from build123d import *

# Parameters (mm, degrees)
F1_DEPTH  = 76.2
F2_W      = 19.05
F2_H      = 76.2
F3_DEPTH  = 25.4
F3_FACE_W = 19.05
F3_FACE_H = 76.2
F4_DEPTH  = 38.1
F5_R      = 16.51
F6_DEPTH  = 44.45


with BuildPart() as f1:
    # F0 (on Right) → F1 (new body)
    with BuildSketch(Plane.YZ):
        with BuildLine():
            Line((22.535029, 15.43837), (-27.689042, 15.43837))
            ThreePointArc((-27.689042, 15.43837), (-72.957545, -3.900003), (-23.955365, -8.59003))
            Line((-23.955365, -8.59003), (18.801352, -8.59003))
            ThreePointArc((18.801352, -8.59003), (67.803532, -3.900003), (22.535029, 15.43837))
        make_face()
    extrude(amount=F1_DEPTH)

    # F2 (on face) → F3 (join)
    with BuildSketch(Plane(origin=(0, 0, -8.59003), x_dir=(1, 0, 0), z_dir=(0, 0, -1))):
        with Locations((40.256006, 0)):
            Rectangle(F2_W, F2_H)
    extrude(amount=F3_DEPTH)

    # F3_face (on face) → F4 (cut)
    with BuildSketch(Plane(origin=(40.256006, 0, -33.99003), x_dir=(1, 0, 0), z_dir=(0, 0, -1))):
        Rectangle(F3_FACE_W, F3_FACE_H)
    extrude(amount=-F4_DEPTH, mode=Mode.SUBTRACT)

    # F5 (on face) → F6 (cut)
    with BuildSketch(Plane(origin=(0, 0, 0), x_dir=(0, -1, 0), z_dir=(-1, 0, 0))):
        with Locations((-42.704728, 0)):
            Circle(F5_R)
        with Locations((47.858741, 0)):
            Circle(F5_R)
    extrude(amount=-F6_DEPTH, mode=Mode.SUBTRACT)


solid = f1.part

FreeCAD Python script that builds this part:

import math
import FreeCAD as App
import Part
import Sketcher

V = App.Vector
Q = App.Units.Quantity


def add_polygon(sketch, points):
    """Adds a closed chain of lines whose ends are joined by coincident constraints."""
    first, n = sketch.GeometryCount, len(points)
    for a, b in zip(points, points[1:] + points[:1]):
        sketch.addGeometry(Part.LineSegment(App.Vector(*a, 0), App.Vector(*b, 0)), False)
    for i in range(n):
        sketch.addConstraint(Sketcher.Constraint("Coincident", first + i, 2, first + (i + 1) % n, 1))

doc = App.newDocument("Part")
params = doc.addObject("Spreadsheet::Sheet", "Params")
for row, (alias, value) in enumerate([
    ("sketch1_radius", "1 in"),
    ("pad1_length", "3 in"),
    ("sketch2_height", "3 in"),
    ("sketch2_width", "0.75 in"),
    ("pad2_length", "1 in"),
    ("sketch3_height", "3 in"),
    ("sketch3_width", "0.75 in"),
    ("pocket1_length", "1.5 in"),
    ("sketch4_diameter", "1.3 in"),
    ("pocket2_length", "1.75 in"),
], start=1):
    params.set(f"A{row}", alias)
    params.set(f"B{row}", "=" + value)
    params.setAlias(f"B{row}", alias)

body = doc.addObject("PartDesign::Body", "Body")

sketch1 = doc.addObject("Sketcher::SketchObject", "Sketch")
body.addObject(sketch1)
sketch1.AttachmentSupport = (doc.YZ_Plane, [""])
sketch1.MapMode = "FlatFace"
sketch1.addGeometry(Part.LineSegment(V(22.535029, 15.43837, 0), V(-27.689042, 15.43837, 0)), False)
sketch1.addGeometry(Part.ArcOfCircle(Part.Circle(V(-47.858741, 0.000001, 0), V(0, 0, 1), 25.4), math.radians(37.431307), math.radians(340.233352)), False)
sketch1.addGeometry(Part.LineSegment(V(-23.955365, -8.59003, 0), V(18.801352, -8.59003, 0)), False)
sketch1.addGeometry(Part.ArcOfCircle(Part.Circle(V(42.704728, 0.000001, 0), V(0, 0, 1), 25.4), math.radians(-160.233352), math.radians(142.568693)), False)
sketch1.addConstraint(Sketcher.Constraint("Coincident", 0, 2, 1, 1))
sketch1.addConstraint(Sketcher.Constraint("Coincident", 1, 2, 2, 1))
sketch1.addConstraint(Sketcher.Constraint("Coincident", 2, 2, 3, 1))
sketch1.addConstraint(Sketcher.Constraint("Coincident", 3, 2, 0, 1))
sketch1.addConstraint(Sketcher.Constraint("Horizontal", 0))
sketch1.addConstraint(Sketcher.Constraint("Horizontal", 2))
sketch1.addConstraint(Sketcher.Constraint("Equal", 1, 3))
sketch1.addConstraint(Sketcher.Constraint("PointOnObject", 1, 3, -1))
sketch1.addConstraint(Sketcher.Constraint("PointOnObject", 3, 3, -1))
sketch1.addConstraint(Sketcher.Constraint("Radius", 1, Q("1 in")))
sketch1.addConstraint(Sketcher.Constraint("DistanceY", 1, 2, 0, 2, Q("0.946 in")))
sketch1.addConstraint(Sketcher.Constraint("DistanceX", 0, 2, 0, 1, Q("50.224071 mm")))
sketch1.addConstraint(Sketcher.Constraint("DistanceX", 1, 3, 0, 2, Q("20.169699 mm")))
sketch1.addConstraint(Sketcher.Constraint("DistanceX", 1, 3, -1, 1, Q("47.858741 mm")))
sketch1.setExpression("Constraints[9]", "Params.sketch1_radius")
pad1 = doc.addObject("PartDesign::Pad", "Pad")
body.addObject(pad1)
pad1.Profile = sketch1
pad1.setExpression("Length", "Params.pad1_length")

sketch2 = doc.addObject("Sketcher::SketchObject", "Sketch001")
body.addObject(sketch2)
sketch2.AttachmentSupport = (doc.XY_Plane, [""])
sketch2.MapMode = "FlatFace"
sketch2.AttachmentOffset = App.Placement(V(0, 0, -8.59003), App.Rotation())
add_polygon(sketch2, [(30.731006, -38.1), (30.731006, 38.1), (49.781006, 38.1), (49.781006, -38.1)])
sketch2.addConstraint(Sketcher.Constraint("Vertical", 0))
sketch2.addConstraint(Sketcher.Constraint("Horizontal", 1))
sketch2.addConstraint(Sketcher.Constraint("Vertical", 2))
sketch2.addConstraint(Sketcher.Constraint("Horizontal", 3))
sketch2.addConstraint(Sketcher.Constraint("DistanceY", 0, 1, 0, 2, Q("3 in")))
sketch2.addConstraint(Sketcher.Constraint("DistanceX", 1, 1, 1, 2, Q("0.75 in")))
sketch2.addConstraint(Sketcher.Constraint("DistanceY", -1, 1, 0, 2, Q("1.5 in")))
sketch2.addConstraint(Sketcher.Constraint("DistanceX", -1, 1, 0, 2, Q("30.731006 mm")))
sketch2.setExpression("Constraints[8]", "Params.sketch2_height")
sketch2.setExpression("Constraints[9]", "Params.sketch2_width")
pad2 = doc.addObject("PartDesign::Pad", "Pad001")
body.addObject(pad2)
pad2.Profile = sketch2
pad2.setExpression("Length", "Params.pad2_length")
pad2.Reversed = True

sketch3 = doc.addObject("Sketcher::SketchObject", "Sketch002")
body.addObject(sketch3)
sketch3.AttachmentSupport = (doc.XY_Plane, [""])
sketch3.MapMode = "FlatFace"
sketch3.AttachmentOffset = App.Placement(V(0, 0, -33.99003), App.Rotation())
add_polygon(sketch3, [(30.731006, -38.1), (30.731006, 38.1), (49.781006, 38.1), (49.781006, -38.1)])
sketch3.addConstraint(Sketcher.Constraint("Vertical", 0))
sketch3.addConstraint(Sketcher.Constraint("Horizontal", 1))
sketch3.addConstraint(Sketcher.Constraint("Vertical", 2))
sketch3.addConstraint(Sketcher.Constraint("Horizontal", 3))
sketch3.addConstraint(Sketcher.Constraint("DistanceY", 0, 1, 0, 2, Q("3 in")))
sketch3.addConstraint(Sketcher.Constraint("DistanceX", 1, 1, 1, 2, Q("0.75 in")))
sketch3.addConstraint(Sketcher.Constraint("DistanceY", -1, 1, 0, 2, Q("1.5 in")))
sketch3.addConstraint(Sketcher.Constraint("DistanceX", -1, 1, 0, 2, Q("30.731006 mm")))
sketch3.setExpression("Constraints[8]", "Params.sketch3_height")
sketch3.setExpression("Constraints[9]", "Params.sketch3_width")
pocket1 = doc.addObject("PartDesign::Pocket", "Pocket")
body.addObject(pocket1)
pocket1.Profile = sketch3
pocket1.setExpression("Length", "Params.pocket1_length")
pocket1.Reversed = True

sketch4 = doc.addObject("Sketcher::SketchObject", "Sketch003")
body.addObject(sketch4)
sketch4.AttachmentSupport = (doc.YZ_Plane, [""])
sketch4.MapMode = "FlatFace"
sketch4.addGeometry(Part.Circle(V(42.704728, 0, 0), V(0, 0, 1), 16.51), False)
sketch4.addGeometry(Part.Circle(V(-47.858741, 0, 0), V(0, 0, 1), 16.51), False)
sketch4.addConstraint(Sketcher.Constraint("Equal", 0, 1))
sketch4.addConstraint(Sketcher.Constraint("PointOnObject", 0, 3, -1))
sketch4.addConstraint(Sketcher.Constraint("PointOnObject", 1, 3, -1))
sketch4.addConstraint(Sketcher.Constraint("Diameter", 0, Q("1.3 in")))
sketch4.addConstraint(Sketcher.Constraint("DistanceX", -1, 1, 0, 3, Q("42.704728 mm")))
sketch4.addConstraint(Sketcher.Constraint("DistanceX", 1, 3, -1, 1, Q("47.858741 mm")))
sketch4.setExpression("Constraints[3]", "Params.sketch4_diameter")
pocket2 = doc.addObject("PartDesign::Pocket", "Pocket001")
body.addObject(pocket2)
pocket2.Profile = sketch4
pocket2.setExpression("Length", "Params.pocket2_length")
pocket2.Reversed = True

doc.recompute()
